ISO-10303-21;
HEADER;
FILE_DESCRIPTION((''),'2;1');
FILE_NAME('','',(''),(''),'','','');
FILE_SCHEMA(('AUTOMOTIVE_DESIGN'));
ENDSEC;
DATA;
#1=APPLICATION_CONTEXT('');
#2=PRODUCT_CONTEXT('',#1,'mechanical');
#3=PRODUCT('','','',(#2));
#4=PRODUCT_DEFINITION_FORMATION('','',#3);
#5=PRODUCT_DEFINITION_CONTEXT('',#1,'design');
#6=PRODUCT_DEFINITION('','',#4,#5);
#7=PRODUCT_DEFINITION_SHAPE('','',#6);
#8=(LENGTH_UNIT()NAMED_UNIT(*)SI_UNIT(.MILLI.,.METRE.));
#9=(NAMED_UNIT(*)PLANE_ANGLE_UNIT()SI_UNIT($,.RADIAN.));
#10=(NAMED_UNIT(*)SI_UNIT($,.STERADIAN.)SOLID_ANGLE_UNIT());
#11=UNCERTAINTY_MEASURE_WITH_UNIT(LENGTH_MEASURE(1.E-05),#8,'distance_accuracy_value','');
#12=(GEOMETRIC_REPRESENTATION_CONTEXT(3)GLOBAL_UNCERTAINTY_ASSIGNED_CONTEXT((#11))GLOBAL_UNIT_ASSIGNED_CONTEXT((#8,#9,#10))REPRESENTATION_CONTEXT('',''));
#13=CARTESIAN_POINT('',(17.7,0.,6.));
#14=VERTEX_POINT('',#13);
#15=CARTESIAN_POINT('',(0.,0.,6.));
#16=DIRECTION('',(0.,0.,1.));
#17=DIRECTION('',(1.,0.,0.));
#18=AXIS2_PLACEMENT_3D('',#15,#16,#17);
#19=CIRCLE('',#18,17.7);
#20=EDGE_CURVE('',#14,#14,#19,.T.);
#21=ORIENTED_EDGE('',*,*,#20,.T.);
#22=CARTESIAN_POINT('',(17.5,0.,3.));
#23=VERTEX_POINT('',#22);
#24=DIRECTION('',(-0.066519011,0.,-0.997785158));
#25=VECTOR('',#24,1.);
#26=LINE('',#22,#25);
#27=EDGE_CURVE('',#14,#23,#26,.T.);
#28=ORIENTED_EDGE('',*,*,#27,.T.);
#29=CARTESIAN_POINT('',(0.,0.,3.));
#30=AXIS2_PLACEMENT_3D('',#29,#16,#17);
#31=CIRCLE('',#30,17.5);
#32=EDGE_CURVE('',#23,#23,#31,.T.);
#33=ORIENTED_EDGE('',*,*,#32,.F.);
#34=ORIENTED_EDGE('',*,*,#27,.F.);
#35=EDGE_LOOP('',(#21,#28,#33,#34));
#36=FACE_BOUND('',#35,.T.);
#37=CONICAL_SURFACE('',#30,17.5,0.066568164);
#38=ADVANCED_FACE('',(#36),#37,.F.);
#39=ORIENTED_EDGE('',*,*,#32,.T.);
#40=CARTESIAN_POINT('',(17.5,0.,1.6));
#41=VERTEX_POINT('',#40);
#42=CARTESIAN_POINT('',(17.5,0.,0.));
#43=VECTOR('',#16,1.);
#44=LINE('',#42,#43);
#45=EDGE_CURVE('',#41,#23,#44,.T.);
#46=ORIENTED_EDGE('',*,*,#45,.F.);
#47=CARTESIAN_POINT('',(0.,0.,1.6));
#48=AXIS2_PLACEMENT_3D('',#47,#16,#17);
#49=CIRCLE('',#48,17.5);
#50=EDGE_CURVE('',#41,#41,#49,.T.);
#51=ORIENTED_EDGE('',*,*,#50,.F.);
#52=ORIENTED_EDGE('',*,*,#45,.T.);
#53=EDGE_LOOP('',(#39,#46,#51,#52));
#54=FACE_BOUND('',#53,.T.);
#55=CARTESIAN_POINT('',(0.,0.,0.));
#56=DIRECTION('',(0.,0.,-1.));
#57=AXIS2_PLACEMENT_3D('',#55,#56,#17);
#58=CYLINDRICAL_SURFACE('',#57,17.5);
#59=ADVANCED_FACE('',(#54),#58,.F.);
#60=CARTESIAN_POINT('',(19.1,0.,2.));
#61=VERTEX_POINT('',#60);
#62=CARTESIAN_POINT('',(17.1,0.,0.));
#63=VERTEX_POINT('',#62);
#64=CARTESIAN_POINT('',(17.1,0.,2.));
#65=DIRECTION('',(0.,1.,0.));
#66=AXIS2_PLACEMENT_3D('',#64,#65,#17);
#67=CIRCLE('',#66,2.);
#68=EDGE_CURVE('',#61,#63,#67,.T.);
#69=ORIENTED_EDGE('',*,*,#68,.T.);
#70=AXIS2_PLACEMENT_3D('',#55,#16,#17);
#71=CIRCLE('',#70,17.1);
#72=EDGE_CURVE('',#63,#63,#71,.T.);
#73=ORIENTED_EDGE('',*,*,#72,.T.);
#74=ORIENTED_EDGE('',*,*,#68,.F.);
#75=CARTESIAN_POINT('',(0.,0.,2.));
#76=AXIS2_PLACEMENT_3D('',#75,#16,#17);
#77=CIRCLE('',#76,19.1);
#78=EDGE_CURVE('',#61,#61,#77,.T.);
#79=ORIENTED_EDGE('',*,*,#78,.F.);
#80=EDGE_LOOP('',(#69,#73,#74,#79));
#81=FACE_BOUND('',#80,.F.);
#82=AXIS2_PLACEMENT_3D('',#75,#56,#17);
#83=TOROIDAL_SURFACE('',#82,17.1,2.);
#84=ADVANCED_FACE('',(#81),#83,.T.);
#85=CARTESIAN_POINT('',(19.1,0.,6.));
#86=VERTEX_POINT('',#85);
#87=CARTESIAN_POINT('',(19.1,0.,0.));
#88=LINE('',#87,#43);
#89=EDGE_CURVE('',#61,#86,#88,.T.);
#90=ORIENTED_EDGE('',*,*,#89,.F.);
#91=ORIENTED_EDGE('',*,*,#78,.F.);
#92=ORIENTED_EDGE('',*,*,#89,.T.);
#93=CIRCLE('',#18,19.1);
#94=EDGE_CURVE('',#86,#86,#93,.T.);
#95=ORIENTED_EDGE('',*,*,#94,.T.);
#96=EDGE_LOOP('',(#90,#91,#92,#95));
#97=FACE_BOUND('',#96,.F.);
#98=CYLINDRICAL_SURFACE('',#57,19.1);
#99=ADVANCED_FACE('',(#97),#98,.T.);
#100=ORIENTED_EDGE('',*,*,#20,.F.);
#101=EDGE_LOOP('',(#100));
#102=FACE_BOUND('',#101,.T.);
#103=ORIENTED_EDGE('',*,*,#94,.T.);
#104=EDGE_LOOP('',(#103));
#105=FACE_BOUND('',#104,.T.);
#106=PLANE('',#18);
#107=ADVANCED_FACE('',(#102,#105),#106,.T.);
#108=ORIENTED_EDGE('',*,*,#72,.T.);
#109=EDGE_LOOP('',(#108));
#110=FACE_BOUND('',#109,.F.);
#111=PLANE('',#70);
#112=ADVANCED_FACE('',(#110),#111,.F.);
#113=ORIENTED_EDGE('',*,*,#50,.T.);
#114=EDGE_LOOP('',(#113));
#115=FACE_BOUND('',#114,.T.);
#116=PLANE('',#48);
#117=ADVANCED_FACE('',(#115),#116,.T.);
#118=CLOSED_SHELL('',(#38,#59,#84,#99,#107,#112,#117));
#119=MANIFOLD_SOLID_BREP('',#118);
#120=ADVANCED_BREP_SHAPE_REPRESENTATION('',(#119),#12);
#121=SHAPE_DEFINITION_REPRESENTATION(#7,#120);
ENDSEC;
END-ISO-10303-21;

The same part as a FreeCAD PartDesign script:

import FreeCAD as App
import Part
import Sketcher
from FreeCAD import Vector


def edges_at(feature, points):
    """Names of the edges that pass closest to the given points."""
    edges = feature.Shape.Edges
    near = lambda p: min(range(len(edges)), key=lambda i: edges[i].distToShape(Part.Vertex(*p))[0])
    return sorted({f"Edge{near(p) + 1}" for p in points})

doc = App.newDocument("Part")
params = doc.addObject("Spreadsheet::Sheet", "Params")
for row, (alias, value) in enumerate([
    ("sketch1_diameter", "35 mm"),
    ("pad1_length", "1.6 mm"),
    ("sketch2_diameter", "35 mm"),
    ("sketch2_diameter2", "38.2 mm"),
    ("pad2_length", "6 mm"),
    ("chamfer_size", "0.2 mm"),
    ("chamfer_size2", "3 mm"),
    ("fillet_radius", "2 mm"),
], start=1):
    params.set(f"A{row}", alias)
    params.set(f"B{row}", "=" + value)
    params.setAlias(f"B{row}", alias)

body = doc.addObject("PartDesign::Body", "Body")

sketch1 = body.newObject("Sketcher::SketchObject", "Sketch")
sketch1.AttachmentSupport = (doc.getObject("XY_Plane"), [""])
sketch1.MapMode = "FlatFace"
sketch1.addGeometry(Part.Circle(Vector(0, 0, 0), Vector(0, 0, 1), 17.5), False)
sketch1.addConstraint(Sketcher.Constraint("Coincident", 0, 3, -1, 1))
sketch1.addConstraint(Sketcher.Constraint("Diameter", 0, 35.0))
sketch1.setExpression("Constraints[1]", "Params.sketch1_diameter")
pad1 = body.newObject("PartDesign::Pad", "Pad")
pad1.Profile = sketch1
pad1.setExpression("Length", "Params.pad1_length")

sketch2 = body.newObject("Sketcher::SketchObject", "Sketch001")
sketch2.AttachmentSupport = (doc.getObject("XY_Plane"), [""])
sketch2.MapMode = "FlatFace"
sketch2.addGeometry(Part.Circle(Vector(0, 0, 0), Vector(0, 0, 1), 19.1), False)
sketch2.addGeometry(Part.Circle(Vector(0, 0, 0), Vector(0, 0, 1), 17.5), False)
sketch2.addConstraint(Sketcher.Constraint("Coincident", 0, 3, -1, 1))
sketch2.addConstraint(Sketcher.Constraint("Coincident", 1, 3, -1, 1))
sketch2.addConstraint(Sketcher.Constraint("Diameter", 1, 35.0))
sketch2.addConstraint(Sketcher.Constraint("Diameter", 0, 38.2))
sketch2.setExpression("Constraints[2]", "Params.sketch2_diameter")
sketch2.setExpression("Constraints[3]", "Params.sketch2_diameter2")
pad2 = body.newObject("PartDesign::Pad", "Pad001")
pad2.Profile = sketch2
pad2.setExpression("Length", "Params.pad2_length")
doc.recompute()

chamfer = body.newObject("PartDesign::Chamfer", "Chamfer")
chamfer.Base = (pad2, edges_at(pad2, [(-17.5, 0, 6)]))
chamfer.ChamferType = "Two distances"
chamfer.setExpression("Size", "Params.chamfer_size")
chamfer.setExpression("Size2", "Params.chamfer_size2")
doc.recompute()

fillet = body.newObject("PartDesign::Fillet", "Fillet")
fillet.Base = (chamfer, edges_at(chamfer, [(-19.1, 0, 0)]))
fillet.setExpression("Radius", "Params.fillet_radius")

doc.recompute()
